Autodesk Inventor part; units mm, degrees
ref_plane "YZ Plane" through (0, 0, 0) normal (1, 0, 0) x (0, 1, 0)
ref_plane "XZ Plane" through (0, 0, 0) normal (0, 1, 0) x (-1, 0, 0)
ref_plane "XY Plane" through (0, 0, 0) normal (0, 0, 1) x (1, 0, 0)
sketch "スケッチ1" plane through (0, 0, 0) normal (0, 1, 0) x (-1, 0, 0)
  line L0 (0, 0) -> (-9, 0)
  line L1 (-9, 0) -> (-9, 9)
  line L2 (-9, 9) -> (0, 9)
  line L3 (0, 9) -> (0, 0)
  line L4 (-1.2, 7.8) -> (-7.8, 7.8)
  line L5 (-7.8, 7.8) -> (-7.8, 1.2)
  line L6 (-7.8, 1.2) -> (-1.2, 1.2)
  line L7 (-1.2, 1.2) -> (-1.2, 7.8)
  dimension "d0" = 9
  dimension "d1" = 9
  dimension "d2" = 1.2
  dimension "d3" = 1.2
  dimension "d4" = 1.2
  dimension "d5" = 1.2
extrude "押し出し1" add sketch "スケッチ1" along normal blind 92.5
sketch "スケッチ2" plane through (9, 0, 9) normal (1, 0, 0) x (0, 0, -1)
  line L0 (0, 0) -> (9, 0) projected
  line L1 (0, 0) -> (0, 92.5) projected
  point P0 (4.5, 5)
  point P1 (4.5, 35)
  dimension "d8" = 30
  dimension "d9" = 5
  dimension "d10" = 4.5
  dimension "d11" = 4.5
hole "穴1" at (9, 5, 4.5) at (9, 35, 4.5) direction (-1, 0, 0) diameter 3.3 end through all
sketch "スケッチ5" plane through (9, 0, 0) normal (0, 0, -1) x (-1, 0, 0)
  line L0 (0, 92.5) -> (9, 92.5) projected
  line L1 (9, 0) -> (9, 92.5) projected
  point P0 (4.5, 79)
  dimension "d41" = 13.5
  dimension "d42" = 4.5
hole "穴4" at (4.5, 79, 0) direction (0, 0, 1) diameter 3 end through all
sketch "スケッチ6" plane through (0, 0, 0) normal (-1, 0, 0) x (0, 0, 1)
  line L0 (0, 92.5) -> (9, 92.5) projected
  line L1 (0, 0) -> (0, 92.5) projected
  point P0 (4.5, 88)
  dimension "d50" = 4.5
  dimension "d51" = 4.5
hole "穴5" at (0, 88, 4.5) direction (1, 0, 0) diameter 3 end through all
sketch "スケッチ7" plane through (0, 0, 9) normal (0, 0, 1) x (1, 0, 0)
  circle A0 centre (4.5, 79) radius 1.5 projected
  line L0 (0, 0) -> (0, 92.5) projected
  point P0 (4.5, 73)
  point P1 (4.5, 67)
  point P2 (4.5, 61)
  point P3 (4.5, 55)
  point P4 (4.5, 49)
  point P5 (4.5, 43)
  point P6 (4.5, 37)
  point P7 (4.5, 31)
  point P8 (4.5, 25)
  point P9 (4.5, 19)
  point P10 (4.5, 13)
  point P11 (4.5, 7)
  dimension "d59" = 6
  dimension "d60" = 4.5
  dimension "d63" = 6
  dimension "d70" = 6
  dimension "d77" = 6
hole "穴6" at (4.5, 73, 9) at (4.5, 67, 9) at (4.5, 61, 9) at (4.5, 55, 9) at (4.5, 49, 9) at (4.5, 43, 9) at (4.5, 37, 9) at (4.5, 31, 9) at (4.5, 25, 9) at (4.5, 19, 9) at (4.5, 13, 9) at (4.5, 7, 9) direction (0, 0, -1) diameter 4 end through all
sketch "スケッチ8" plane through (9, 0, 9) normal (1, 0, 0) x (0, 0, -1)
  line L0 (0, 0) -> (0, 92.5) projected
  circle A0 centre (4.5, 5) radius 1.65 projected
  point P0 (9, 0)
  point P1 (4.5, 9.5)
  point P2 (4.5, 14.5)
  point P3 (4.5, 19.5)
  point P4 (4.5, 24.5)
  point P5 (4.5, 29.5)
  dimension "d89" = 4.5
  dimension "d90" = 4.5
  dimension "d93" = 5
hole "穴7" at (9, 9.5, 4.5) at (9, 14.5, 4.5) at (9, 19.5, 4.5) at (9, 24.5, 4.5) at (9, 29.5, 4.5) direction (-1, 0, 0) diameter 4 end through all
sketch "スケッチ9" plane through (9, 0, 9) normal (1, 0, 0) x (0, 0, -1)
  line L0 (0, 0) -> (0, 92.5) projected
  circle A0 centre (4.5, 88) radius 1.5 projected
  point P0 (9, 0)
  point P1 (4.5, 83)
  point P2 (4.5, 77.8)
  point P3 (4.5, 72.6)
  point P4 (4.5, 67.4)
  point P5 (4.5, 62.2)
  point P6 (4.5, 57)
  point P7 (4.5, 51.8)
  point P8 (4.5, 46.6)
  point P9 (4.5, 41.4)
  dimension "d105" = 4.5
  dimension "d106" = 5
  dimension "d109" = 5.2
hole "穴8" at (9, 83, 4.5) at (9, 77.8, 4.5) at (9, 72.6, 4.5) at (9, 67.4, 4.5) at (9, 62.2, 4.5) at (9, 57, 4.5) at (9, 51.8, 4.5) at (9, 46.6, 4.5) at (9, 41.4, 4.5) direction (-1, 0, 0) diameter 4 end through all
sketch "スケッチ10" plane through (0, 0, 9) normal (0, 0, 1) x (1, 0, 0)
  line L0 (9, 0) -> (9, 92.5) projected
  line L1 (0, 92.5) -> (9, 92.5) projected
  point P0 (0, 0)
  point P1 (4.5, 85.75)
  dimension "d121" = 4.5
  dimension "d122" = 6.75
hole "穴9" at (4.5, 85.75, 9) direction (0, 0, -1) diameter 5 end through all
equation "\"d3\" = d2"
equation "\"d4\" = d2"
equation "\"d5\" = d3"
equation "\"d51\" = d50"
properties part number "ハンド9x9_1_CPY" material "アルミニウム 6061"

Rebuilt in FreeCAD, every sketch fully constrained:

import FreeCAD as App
import Part
import Sketcher
from FreeCAD import Vector


def add_polygon(sketch, points):
    """Adds a closed chain of lines whose ends are joined by coincident constraints."""
    first, n = sketch.GeometryCount, len(points)
    for a, b in zip(points, points[1:] + points[:1]):
        sketch.addGeometry(Part.LineSegment(App.Vector(*a, 0), App.Vector(*b, 0)), False)
    for i in range(n):
        sketch.addConstraint(Sketcher.Constraint("Coincident", first + i, 2, first + (i + 1) % n, 1))

doc = App.newDocument("Part")
body = doc.addObject("PartDesign::Body", "Body")

# Sketch on XZ plane
sketch1 = body.newObject("Sketcher::SketchObject", "Sketch")
sketch1.AttachmentSupport = (doc.getObject("XZ_Plane"), [""])
sketch1.MapMode = "FlatFace"
add_polygon(sketch1, [(9, 0), (0, 0), (0, 9), (9, 9)])  # lines 0-3
add_polygon(sketch1, [(8, 8), (1, 8), (1, 1), (8, 1)])  # lines 4-7
sketch1.addConstraint([
    Sketcher.Constraint("Horizontal", 0),
    Sketcher.Constraint("Vertical", 1),
    Sketcher.Constraint("Horizontal", 2),
    Sketcher.Constraint("Vertical", 3),
    Sketcher.Constraint("Horizontal", 4),
    Sketcher.Constraint("Vertical", 5),
    Sketcher.Constraint("Horizontal", 6),
    Sketcher.Constraint("Vertical", 7),
    Sketcher.Constraint("Coincident", 0, 2, -1, 1),
    Sketcher.Constraint("Equal", 2, 1),
    Sketcher.Constraint("Equal", 6, 5),
    Sketcher.Constraint("DistanceX", 0, 2, 0, 1, 9.0),
    Sketcher.Constraint("DistanceX", -1, 1, 4, 2, 1.2),
    Sketcher.Constraint("DistanceY", -1, 1, 5, 2, 1.2),
    Sketcher.Constraint("DistanceY", 4, 2, 1, 2, 1.2),
])
pad1 = body.newObject("PartDesign::Pad", "Pad")
pad1.Profile = sketch1
pad1.Length = 92.5
pad1.Reversed = True

# Sketch on YZ plane
sketch2 = body.newObject("Sketcher::SketchObject", "Sketch001")
sketch2.AttachmentSupport = (doc.getObject("YZ_Plane"), [""])
sketch2.MapMode = "FlatFace"
sketch2.AttachmentOffset = App.Placement(Vector(0, 0, 9), App.Rotation())
sketch2.addGeometry([
    Part.Circle(Vector(5, 4.5, 0), Vector(0, 0, 1), 1.6),
    Part.Circle(Vector(35, 4.5, 0), Vector(0, 0, 1), 1.6),
], False)
sketch2.addConstraint([
    Sketcher.Constraint("Equal", 0, 1),
    Sketcher.Constraint("Horizontal", 0, 3, 1, 3),
    Sketcher.Constraint("Diameter", 0, 3.3),
    Sketcher.Constraint("DistanceX", -1, 1, 0, 3, 5.0),
    Sketcher.Constraint("DistanceX", -1, 1, 1, 3, 35.0),
    Sketcher.Constraint("DistanceY", -1, 1, 0, 3, 4.5),
])
doc.recompute()
hole = body.newObject("PartDesign::Hole", "Hole")
hole.Profile = sketch2
hole.ThreadType = "None"
hole.Diameter = 3.3
hole.DepthType = "ThroughAll"

# Sketch on XY plane
sketch3 = body.newObject("Sketcher::SketchObject", "Sketch002")
sketch3.AttachmentSupport = (doc.getObject("XY_Plane"), [""])
sketch3.MapMode = "FlatFace"
sketch3.addGeometry(Part.Circle(Vector(4.5, 79, 0), Vector(0, 0, 1), 1.5), False)
sketch3.addConstraint([
    Sketcher.Constraint("Diameter", 0, 3.0),
    Sketcher.Constraint("DistanceY", -1, 1, 0, 3, 79.0),
    Sketcher.Constraint("DistanceX", -1, 1, 0, 3, 4.5),
])
doc.recompute()
hole2 = body.newObject("PartDesign::Hole", "Hole001")
hole2.Profile = sketch3
hole2.ThreadType = "None"
hole2.Diameter = 3
hole2.DepthType = "ThroughAll"
hole2.Reversed = True

# Sketch on YZ plane
sketch4 = body.newObject("Sketcher::SketchObject", "Sketch003")
sketch4.AttachmentSupport = (doc.getObject("YZ_Plane"), [""])
sketch4.MapMode = "FlatFace"
sketch4.addGeometry(Part.Circle(Vector(88, 4.5, 0), Vector(0, 0, 1), 1.5), False)
sketch4.addConstraint([
    Sketcher.Constraint("Diameter", 0, 3.0),
    Sketcher.Constraint("DistanceX", -1, 1, 0, 3, 88.0),
    Sketcher.Constraint("DistanceY", -1, 1, 0, 3, 4.5),
])
doc.recompute()
hole3 = body.newObject("PartDesign::Hole", "Hole002")
hole3.Profile = sketch4
hole3.ThreadType = "None"
hole3.Diameter = 3
hole3.DepthType = "ThroughAll"
hole3.Reversed = True

# Sketch on XY plane
sketch5 = body.newObject("Sketcher::SketchObject", "Sketch004")
sketch5.AttachmentSupport = (doc.getObject("XY_Plane"), [""])
sketch5.MapMode = "FlatFace"
sketch5.AttachmentOffset = App.Placement(Vector(0, 0, 9), App.Rotation())
sketch5.addGeometry([
    Part.Circle(Vector(4.5, 73, 0), Vector(0, 0, 1), 2),  # 0
    Part.Circle(Vector(4.5, 67, 0), Vector(0, 0, 1), 2),  # 1
    Part.Circle(Vector(4.5, 61, 0), Vector(0, 0, 1), 2),  # 2
    Part.Circle(Vector(4.5, 55, 0), Vector(0, 0, 1), 2),  # 3
    Part.Circle(Vector(4.5, 49, 0), Vector(0, 0, 1), 2),  # 4
    Part.Circle(Vector(4.5, 43, 0), Vector(0, 0, 1), 2),  # 5
    Part.Circle(Vector(4.5, 37, 0), Vector(0, 0, 1), 2),  # 6
    Part.Circle(Vector(4.5, 31, 0), Vector(0, 0, 1), 2),  # 7
    Part.Circle(Vector(4.5, 25, 0), Vector(0, 0, 1), 2),  # 8
    Part.Circle(Vector(4.5, 19, 0), Vector(0, 0, 1), 2),  # 9
    Part.Circle(Vector(4.5, 13, 0), Vector(0, 0, 1), 2),  # 10
    Part.Circle(Vector(4.5, 7, 0), Vector(0, 0, 1), 2),  # 11
], False)
sketch5.addConstraint([
    Sketcher.Constraint("Equal", 0, 1),
    Sketcher.Constraint("Equal", 1, 2),
    Sketcher.Constraint("Equal", 2, 3),
    Sketcher.Constraint("Equal", 3, 4),
    Sketcher.Constraint("Equal", 4, 5),
    Sketcher.Constraint("Equal", 5, 6),
    Sketcher.Constraint("Equal", 6, 7),
    Sketcher.Constraint("Equal", 7, 8),
    Sketcher.Constraint("Equal", 8, 9),
    Sketcher.Constraint("Equal", 9, 10),
    Sketcher.Constraint("Equal", 10, 11),
    Sketcher.Constraint("Vertical", 0, 3, 1, 3),
    Sketcher.Constraint("Vertical", 1, 3, 2, 3),
    Sketcher.Constraint("Vertical", 2, 3, 3, 3),
    Sketcher.Constraint("Vertical", 3, 3, 4, 3),
    Sketcher.Constraint("Vertical", 4, 3, 5, 3),
    Sketcher.Constraint("Vertical", 5, 3, 6, 3),
    Sketcher.Constraint("Vertical", 6, 3, 7, 3),
    Sketcher.Constraint("Vertical", 7, 3, 8, 3),
    Sketcher.Constraint("Vertical", 8, 3, 9, 3),
    Sketcher.Constraint("Vertical", 9, 3, 10, 3),
    Sketcher.Constraint("Vertical", 10, 3, 11, 3),
    Sketcher.Constraint("Diameter", 0, 4.0),
    Sketcher.Constraint("DistanceY", -1, 1, 0, 3, 73.0),
    Sketcher.Constraint("DistanceY", -1, 1, 1, 3, 67.0),
    Sketcher.Constraint("DistanceY", -1, 1, 2, 3, 61.0),
    Sketcher.Constraint("DistanceY", -1, 1, 3, 3, 55.0),
    Sketcher.Constraint("DistanceY", -1, 1, 4, 3, 49.0),
    Sketcher.Constraint("DistanceY", -1, 1, 5, 3, 43.0),
    Sketcher.Constraint("DistanceY", -1, 1, 6, 3, 37.0),
    Sketcher.Constraint("DistanceY", -1, 1, 7, 3, 31.0),
    Sketcher.Constraint("DistanceY", -1, 1, 8, 3, 25.0),
    Sketcher.Constraint("DistanceY", -1, 1, 9, 3, 19.0),
    Sketcher.Constraint("DistanceY", -1, 1, 10, 3, 13.0),
    Sketcher.Constraint("DistanceY", -1, 1, 11, 3, 7.0),
    Sketcher.Constraint("DistanceX", -1, 1, 0, 3, 4.5),
])
doc.recompute()
hole4 = body.newObject("PartDesign::Hole", "Hole003")
hole4.Profile = sketch5
hole4.ThreadType = "None"
hole4.Diameter = 4
hole4.DepthType = "ThroughAll"

# Sketch on YZ plane
sketch6 = body.newObject("Sketcher::SketchObject", "Sketch005")
sketch6.AttachmentSupport = (doc.getObject("YZ_Plane"), [""])
sketch6.MapMode = "FlatFace"
sketch6.AttachmentOffset = App.Placement(Vector(0, 0, 9), App.Rotation())
sketch6.addGeometry([
    Part.Circle(Vector(9.5, 4.5, 0), Vector(0, 0, 1), 2),  # 0
    Part.Circle(Vector(14.5, 4.5, 0), Vector(0, 0, 1), 2),  # 1
    Part.Circle(Vector(19.5, 4.5, 0), Vector(0, 0, 1), 2),  # 2
    Part.Circle(Vector(24.5, 4.5, 0), Vector(0, 0, 1), 2),  # 3
    Part.Circle(Vector(29.5, 4.5, 0), Vector(0, 0, 1), 2),  # 4
], False)
sketch6.addConstraint([
    Sketcher.Constraint("Equal", 0, 1),
    Sketcher.Constraint("Equal", 1, 2),
    Sketcher.Constraint("Equal", 2, 3),
    Sketcher.Constraint("Equal", 3, 4),
    Sketcher.Constraint("Horizontal", 0, 3, 1, 3),
    Sketcher.Constraint("Horizontal", 1, 3, 2, 3),
    Sketcher.Constraint("Horizontal", 2, 3, 3, 3),
    Sketcher.Constraint("Horizontal", 3, 3, 4, 3),
    Sketcher.Constraint("Diameter", 0, 4.0),
    Sketcher.Constraint("DistanceX", 0, 3, 1, 3, 5.0),
    Sketcher.Constraint("DistanceX", 1, 3, 2, 3, 5.0),
    Sketcher.Constraint("DistanceX", 2, 3, 3, 3, 5.0),
    Sketcher.Constraint("DistanceX", 3, 3, 4, 3, 5.0),
    Sketcher.Constraint("DistanceX", -1, 1, 0, 3, 9.5),
    Sketcher.Constraint("DistanceY", -1, 1, 0, 3, 4.5),
])
doc.recompute()
hole5 = body.newObject("PartDesign::Hole", "Hole004")
hole5.Profile = sketch6
hole5.ThreadType = "None"
hole5.Diameter = 4
hole5.DepthType = "ThroughAll"

# Sketch on YZ plane
sketch7 = body.newObject("Sketcher::SketchObject", "Sketch006")
sketch7.AttachmentSupport = (doc.getObject("YZ_Plane"), [""])
sketch7.MapMode = "FlatFace"
sketch7.AttachmentOffset = App.Placement(Vector(0, 0, 9), App.Rotation())
sketch7.addGeometry([
    Part.Circle(Vector(83, 4.5, 0), Vector(0, 0, 1), 2),  # 0
    Part.Circle(Vector(77.8, 4.5, 0), Vector(0, 0, 1), 2),  # 1
    Part.Circle(Vector(72.6, 4.5, 0), Vector(0, 0, 1), 2),  # 2
    Part.Circle(Vector(67.4, 4.5, 0), Vector(0, 0, 1), 2),  # 3
    Part.Circle(Vector(62.2, 4.5, 0), Vector(0, 0, 1), 2),  # 4
    Part.Circle(Vector(57, 4.5, 0), Vector(0, 0, 1), 2),  # 5
    Part.Circle(Vector(51.8, 4.5, 0), Vector(0, 0, 1), 2),  # 6
    Part.Circle(Vector(46.6, 4.5, 0), Vector(0, 0, 1), 2),  # 7
    Part.Circle(Vector(41.4, 4.5, 0), Vector(0, 0, 1), 2),  # 8
], False)
sketch7.addConstraint([
    Sketcher.Constraint("Equal", 0, 1),
    Sketcher.Constraint("Equal", 1, 2),
    Sketcher.Constraint("Equal", 2, 3),
    Sketcher.Constraint("Equal", 3, 4),
    Sketcher.Constraint("Equal", 4, 5),
    Sketcher.Constraint("Equal", 5, 6),
    Sketcher.Constraint("Equal", 6, 7),
    Sketcher.Constraint("Equal", 7, 8),
    Sketcher.Constraint("Horizontal", 0, 3, 1, 3),
    Sketcher.Constraint("Horizontal", 1, 3, 2, 3),
    Sketcher.Constraint("Horizontal", 2, 3, 3, 3),
    Sketcher.Constraint("Horizontal", 3, 3, 4, 3),
    Sketcher.Constraint("Horizontal", 4, 3, 5, 3),
    Sketcher.Constraint("Horizontal", 5, 3, 6, 3),
    Sketcher.Constraint("Horizontal", 6, 3, 7, 3),
    Sketcher.Constraint("Horizontal", 7, 3, 8, 3),
    Sketcher.Constraint("Diameter", 0, 4.0),
    Sketcher.Constraint("DistanceX", -1, 1, 0, 3, 83.0),
    Sketcher.Constraint("DistanceX", -1, 1, 5, 3, 57.0),
    Sketcher.Constraint("DistanceX", 6, 3, 1, 3, 26.0),
    Sketcher.Constraint("DistanceX", 7, 3, 2, 3, 26.0),
    Sketcher.Constraint("DistanceX", 8, 3, 3, 3, 26.0),
    Sketcher.Constraint("DistanceY", -1, 1, 0, 3, 4.5),
    Sketcher.Constraint("DistanceX", -1, 1, 1, 3, 77.8),
    Sketcher.Constraint("DistanceX", -1, 1, 2, 3, 72.6),
    Sketcher.Constraint("DistanceX", -1, 1, 3, 3, 67.4),
    Sketcher.Constraint("DistanceX", -1, 1, 4, 3, 62.2),
])
doc.recompute()
hole6 = body.newObject("PartDesign::Hole", "Hole005")
hole6.Profile = sketch7
hole6.ThreadType = "None"
hole6.Diameter = 4
hole6.DepthType = "ThroughAll"

# Sketch on XY plane
sketch8 = body.newObject("Sketcher::SketchObject", "Sketch007")
sketch8.AttachmentSupport = (doc.getObject("XY_Plane"), [""])
sketch8.MapMode = "FlatFace"
sketch8.AttachmentOffset = App.Placement(Vector(0, 0, 9), App.Rotation())
sketch8.addGeometry(Part.Circle(Vector(4.5, 85.8, 0), Vector(0, 0, 1), 2.5), False)
sketch8.addConstraint([
    Sketcher.Constraint("Diameter", 0, 5.0),
    Sketcher.Constraint("DistanceX", -1, 1, 0, 3, 4.5),
    Sketcher.Constraint("DistanceY", -1, 1, 0, 3, 85.75),
])
doc.recompute()
hole7 = body.newObject("PartDesign::Hole", "Hole006")
hole7.Profile = sketch8
hole7.ThreadType = "None"
hole7.Diameter = 5
hole7.DepthType = "ThroughAll"

doc.recompute()
